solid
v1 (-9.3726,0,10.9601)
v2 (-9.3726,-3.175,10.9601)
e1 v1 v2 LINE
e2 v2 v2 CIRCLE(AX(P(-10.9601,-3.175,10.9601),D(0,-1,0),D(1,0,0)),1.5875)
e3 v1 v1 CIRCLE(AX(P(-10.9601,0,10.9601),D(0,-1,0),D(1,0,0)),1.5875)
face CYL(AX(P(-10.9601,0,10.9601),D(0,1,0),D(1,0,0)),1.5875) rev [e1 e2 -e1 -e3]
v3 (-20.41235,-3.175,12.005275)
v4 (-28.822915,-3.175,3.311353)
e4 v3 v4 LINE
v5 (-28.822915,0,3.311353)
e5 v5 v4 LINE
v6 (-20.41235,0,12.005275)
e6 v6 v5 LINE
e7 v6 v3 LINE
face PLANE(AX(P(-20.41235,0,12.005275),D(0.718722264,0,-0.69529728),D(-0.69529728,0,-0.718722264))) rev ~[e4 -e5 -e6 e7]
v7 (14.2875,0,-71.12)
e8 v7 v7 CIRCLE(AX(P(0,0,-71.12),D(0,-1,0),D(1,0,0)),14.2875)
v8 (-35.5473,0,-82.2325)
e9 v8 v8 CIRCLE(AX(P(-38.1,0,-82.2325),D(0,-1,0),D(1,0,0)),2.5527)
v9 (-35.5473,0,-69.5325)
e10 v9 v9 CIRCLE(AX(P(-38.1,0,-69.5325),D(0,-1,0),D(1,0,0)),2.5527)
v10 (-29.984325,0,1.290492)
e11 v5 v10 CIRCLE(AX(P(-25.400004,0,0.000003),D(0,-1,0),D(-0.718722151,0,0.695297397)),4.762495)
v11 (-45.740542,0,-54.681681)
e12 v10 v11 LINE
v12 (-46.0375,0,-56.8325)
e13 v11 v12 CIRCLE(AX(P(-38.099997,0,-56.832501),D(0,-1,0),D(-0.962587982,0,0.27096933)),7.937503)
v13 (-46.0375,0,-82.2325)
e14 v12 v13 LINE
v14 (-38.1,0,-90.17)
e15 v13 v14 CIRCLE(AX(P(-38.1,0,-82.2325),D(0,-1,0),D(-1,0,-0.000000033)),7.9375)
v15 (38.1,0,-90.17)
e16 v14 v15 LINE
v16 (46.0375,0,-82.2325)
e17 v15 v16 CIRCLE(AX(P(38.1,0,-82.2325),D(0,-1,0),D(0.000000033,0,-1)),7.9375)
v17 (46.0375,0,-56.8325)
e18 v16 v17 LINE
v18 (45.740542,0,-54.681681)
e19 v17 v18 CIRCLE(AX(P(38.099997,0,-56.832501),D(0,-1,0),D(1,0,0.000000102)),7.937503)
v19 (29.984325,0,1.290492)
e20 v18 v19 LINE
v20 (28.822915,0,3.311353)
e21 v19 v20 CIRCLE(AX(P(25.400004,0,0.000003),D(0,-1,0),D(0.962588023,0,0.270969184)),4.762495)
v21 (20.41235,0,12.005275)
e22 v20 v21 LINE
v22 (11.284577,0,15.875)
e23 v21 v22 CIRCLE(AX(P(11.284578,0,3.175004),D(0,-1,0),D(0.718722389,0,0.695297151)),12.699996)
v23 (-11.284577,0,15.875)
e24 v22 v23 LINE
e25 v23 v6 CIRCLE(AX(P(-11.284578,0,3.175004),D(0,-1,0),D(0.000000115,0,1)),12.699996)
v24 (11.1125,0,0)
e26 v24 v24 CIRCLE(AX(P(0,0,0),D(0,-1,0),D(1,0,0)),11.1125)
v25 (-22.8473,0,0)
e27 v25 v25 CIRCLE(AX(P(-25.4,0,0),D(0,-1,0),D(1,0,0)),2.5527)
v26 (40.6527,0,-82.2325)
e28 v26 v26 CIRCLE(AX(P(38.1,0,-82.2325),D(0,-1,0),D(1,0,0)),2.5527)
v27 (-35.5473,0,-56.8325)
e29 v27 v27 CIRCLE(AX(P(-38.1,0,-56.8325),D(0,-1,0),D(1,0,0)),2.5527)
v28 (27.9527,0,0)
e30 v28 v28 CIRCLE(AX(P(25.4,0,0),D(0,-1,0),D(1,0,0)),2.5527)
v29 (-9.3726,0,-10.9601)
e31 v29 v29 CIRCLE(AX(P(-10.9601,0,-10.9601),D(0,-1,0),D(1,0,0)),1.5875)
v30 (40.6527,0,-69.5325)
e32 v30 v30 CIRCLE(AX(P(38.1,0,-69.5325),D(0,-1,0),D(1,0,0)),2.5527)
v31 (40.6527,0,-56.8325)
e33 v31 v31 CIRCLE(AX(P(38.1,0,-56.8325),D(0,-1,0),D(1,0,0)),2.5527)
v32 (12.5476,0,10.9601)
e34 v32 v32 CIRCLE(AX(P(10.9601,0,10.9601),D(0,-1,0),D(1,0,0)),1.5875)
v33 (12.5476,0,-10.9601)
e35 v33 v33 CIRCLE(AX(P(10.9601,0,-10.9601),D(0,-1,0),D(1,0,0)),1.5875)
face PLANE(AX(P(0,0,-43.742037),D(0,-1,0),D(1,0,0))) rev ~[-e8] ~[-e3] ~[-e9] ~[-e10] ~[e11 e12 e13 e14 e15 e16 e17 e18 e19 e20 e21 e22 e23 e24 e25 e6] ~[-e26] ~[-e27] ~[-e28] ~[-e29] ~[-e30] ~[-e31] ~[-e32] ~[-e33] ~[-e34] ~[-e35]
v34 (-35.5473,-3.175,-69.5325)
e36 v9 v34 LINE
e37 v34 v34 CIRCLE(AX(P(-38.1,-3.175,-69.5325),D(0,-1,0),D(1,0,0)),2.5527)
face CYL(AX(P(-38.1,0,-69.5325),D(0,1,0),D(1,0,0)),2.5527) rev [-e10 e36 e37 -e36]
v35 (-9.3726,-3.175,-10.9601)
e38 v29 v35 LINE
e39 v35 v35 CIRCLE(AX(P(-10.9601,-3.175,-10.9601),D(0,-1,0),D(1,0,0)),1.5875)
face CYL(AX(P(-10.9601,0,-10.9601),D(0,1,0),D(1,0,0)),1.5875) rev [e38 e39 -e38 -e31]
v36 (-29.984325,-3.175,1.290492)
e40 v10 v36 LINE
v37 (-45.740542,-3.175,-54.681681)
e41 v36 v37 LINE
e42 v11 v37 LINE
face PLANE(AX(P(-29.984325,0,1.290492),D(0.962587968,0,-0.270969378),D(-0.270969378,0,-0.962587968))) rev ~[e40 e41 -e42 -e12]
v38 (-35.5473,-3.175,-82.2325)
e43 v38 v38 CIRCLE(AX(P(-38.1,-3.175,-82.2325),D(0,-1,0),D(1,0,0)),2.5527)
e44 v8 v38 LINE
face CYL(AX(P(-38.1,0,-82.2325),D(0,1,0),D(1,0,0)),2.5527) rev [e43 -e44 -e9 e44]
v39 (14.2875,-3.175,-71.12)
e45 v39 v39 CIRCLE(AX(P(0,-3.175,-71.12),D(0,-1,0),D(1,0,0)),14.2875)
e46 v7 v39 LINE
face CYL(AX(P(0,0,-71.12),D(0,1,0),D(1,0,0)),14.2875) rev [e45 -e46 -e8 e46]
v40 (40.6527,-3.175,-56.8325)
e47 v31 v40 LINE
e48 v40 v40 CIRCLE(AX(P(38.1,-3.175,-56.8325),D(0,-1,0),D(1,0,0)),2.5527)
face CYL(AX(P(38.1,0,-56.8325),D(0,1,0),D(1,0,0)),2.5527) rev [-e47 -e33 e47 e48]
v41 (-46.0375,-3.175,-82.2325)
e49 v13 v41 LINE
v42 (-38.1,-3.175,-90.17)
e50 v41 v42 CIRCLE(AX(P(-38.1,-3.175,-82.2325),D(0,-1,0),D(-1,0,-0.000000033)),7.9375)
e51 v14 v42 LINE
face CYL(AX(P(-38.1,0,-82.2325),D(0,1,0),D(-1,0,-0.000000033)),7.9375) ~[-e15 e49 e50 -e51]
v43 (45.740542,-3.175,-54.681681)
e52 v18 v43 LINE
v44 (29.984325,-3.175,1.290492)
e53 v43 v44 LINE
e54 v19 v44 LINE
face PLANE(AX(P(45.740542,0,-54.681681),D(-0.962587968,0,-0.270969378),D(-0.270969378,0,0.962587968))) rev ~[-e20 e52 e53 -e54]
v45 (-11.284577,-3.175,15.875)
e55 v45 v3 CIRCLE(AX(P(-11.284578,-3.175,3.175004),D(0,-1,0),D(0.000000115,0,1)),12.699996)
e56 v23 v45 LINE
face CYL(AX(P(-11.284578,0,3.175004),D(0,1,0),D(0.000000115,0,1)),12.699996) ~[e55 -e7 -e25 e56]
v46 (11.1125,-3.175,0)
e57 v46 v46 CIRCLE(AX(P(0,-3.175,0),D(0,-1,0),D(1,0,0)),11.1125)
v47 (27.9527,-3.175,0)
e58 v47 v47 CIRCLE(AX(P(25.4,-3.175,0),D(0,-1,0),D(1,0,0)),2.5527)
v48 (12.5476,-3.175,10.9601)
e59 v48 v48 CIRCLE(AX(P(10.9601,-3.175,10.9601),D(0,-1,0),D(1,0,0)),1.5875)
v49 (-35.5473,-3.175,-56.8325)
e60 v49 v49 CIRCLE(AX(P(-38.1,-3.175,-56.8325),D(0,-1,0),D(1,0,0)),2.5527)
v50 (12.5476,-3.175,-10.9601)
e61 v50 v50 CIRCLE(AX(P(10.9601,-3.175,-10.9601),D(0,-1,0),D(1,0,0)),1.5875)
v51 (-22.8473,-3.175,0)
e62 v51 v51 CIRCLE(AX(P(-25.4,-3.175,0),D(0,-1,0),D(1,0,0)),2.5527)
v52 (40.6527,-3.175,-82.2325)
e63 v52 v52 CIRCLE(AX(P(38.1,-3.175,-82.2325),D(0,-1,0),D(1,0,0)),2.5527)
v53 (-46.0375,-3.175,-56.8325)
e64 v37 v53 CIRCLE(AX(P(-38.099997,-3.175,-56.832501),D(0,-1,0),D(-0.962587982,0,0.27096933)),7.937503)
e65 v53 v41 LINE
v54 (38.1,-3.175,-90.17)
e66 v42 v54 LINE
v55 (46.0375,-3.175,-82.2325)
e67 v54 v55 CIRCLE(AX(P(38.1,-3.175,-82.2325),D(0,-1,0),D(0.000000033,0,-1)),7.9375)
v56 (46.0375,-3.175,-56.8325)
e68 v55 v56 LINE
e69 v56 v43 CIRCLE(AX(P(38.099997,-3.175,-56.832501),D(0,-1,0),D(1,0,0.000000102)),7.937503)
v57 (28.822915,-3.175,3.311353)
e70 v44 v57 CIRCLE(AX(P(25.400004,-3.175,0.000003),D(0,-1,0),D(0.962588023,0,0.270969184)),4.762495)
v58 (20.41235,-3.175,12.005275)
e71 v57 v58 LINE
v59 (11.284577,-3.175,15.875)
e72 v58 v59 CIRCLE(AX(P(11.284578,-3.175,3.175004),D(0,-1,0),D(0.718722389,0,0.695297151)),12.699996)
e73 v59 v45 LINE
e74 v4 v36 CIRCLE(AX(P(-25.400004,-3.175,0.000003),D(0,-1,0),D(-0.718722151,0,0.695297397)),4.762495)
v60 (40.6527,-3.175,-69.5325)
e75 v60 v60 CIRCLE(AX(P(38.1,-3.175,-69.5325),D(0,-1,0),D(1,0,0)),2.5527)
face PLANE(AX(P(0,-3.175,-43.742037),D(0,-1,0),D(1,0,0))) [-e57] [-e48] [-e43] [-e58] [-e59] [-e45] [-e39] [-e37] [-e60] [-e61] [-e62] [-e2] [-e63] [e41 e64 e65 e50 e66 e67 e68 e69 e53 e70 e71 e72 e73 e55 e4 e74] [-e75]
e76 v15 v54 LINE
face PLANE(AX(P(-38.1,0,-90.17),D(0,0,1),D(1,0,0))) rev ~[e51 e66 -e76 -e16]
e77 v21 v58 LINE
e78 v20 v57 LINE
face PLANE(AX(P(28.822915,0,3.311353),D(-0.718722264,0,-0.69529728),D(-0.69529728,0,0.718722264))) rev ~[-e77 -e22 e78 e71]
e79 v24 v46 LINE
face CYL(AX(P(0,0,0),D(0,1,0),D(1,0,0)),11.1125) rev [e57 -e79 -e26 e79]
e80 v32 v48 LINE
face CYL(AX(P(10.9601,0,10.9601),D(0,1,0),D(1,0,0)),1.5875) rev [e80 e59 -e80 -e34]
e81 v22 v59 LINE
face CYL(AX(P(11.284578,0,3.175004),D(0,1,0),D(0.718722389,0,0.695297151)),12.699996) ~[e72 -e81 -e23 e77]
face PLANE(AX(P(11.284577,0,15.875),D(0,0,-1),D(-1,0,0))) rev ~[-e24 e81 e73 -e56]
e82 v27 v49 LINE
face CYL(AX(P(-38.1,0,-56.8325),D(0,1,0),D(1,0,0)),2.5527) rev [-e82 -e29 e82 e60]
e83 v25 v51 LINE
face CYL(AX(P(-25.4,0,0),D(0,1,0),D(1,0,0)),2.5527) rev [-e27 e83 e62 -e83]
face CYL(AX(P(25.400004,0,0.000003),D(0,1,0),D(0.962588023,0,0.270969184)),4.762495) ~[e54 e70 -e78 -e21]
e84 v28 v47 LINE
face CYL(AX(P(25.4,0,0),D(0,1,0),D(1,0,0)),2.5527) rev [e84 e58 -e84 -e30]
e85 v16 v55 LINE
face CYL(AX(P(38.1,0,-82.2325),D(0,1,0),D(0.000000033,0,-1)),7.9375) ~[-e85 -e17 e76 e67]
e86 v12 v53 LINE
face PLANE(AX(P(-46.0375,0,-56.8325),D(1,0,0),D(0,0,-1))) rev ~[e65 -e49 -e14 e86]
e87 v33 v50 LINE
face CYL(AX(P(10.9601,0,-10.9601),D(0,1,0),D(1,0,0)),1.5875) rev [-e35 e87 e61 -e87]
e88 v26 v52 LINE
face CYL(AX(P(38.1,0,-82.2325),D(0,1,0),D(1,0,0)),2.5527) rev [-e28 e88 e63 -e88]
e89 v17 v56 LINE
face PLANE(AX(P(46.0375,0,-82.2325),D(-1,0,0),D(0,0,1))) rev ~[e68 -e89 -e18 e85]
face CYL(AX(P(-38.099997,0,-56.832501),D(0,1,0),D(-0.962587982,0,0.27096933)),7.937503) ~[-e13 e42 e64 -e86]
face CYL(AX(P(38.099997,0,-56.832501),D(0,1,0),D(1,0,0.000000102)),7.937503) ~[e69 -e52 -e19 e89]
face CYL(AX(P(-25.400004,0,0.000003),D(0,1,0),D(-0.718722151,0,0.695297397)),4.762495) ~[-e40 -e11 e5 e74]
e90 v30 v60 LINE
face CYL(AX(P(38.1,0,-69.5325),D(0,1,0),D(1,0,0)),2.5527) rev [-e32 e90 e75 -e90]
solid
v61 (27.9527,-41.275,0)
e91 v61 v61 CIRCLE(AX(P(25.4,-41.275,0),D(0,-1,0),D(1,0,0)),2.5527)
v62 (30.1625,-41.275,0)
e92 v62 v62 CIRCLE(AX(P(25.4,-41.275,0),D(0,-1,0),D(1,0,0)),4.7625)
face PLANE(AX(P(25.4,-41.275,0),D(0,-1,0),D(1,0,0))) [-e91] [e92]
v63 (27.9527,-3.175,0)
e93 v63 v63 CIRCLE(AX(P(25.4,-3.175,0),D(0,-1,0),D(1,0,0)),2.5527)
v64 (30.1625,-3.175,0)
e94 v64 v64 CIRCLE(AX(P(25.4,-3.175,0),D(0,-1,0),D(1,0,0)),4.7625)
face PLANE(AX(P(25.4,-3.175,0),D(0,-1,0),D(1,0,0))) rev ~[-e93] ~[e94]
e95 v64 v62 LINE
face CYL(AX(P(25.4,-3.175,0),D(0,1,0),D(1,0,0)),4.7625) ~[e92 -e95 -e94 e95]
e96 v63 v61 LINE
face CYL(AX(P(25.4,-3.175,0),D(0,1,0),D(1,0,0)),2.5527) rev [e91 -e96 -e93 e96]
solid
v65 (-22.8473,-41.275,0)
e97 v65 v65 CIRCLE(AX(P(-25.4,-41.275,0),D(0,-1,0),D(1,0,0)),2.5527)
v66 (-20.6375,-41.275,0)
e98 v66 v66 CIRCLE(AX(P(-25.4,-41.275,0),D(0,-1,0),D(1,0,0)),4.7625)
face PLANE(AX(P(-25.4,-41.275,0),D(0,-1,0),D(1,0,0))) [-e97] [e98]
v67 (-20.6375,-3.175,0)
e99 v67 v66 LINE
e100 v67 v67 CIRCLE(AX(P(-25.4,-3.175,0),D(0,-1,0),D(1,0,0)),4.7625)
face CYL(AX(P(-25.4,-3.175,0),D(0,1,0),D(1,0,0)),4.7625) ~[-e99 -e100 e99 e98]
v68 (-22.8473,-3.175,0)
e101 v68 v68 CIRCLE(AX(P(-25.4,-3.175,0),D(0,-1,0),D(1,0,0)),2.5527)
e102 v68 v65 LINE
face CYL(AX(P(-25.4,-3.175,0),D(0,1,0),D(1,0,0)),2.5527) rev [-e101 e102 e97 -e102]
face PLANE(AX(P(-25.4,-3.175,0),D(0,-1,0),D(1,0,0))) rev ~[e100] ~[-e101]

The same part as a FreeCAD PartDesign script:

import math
import FreeCAD as App
import Part
import Sketcher

V = App.Vector
Q = App.Units.Quantity

doc = App.newDocument("Part")
body = doc.addObject("PartDesign::Body", "Body")

sketch1 = doc.addObject("Sketcher::SketchObject", "Sketch")
body.addObject(sketch1)
sketch1.AttachmentSupport = (doc.XZ_Plane, [""])
sketch1.MapMode = "FlatFace"
sketch1.addGeometry([
    Part.LineSegment(V(-20.4, 12, 0), V(-28.8, 3.3, 0)),
    Part.ArcOfCircle(Part.Circle(V(-25.4, 0, 0), V(0, 0, 1), 4.8), math.radians(136), math.radians(164)),
    Part.LineSegment(V(-30, 1.3, 0), V(-45.7, -54.7, 0)),
    Part.ArcOfCircle(Part.Circle(V(-38.1, -56.8, 0), V(0, 0, 1), 7.9), math.radians(164.28), math.radians(180)),
    Part.LineSegment(V(-46, -56.8, 0), V(-46, -82.2, 0)),
    Part.ArcOfCircle(Part.Circle(V(-38.1, -82.2, 0), V(0, 0, 1), 7.9), math.radians(-180), math.radians(-90)),
    Part.LineSegment(V(-38.1, -90.2, 0), V(38.1, -90.2, 0)),
    Part.ArcOfCircle(Part.Circle(V(38.1, -82.2, 0), V(0, 0, 1), 7.9), math.radians(-90), math.radians(0)),
    Part.LineSegment(V(46, -82.2, 0), V(46, -56.8, 0)),
    Part.ArcOfCircle(Part.Circle(V(38.1, -56.8, 0), V(0, 0, 1), 7.9), math.radians(0), math.radians(15.72)),
    Part.LineSegment(V(45.7, -54.7, 0), V(30, 1.3, 0)),
    Part.ArcOfCircle(Part.Circle(V(25.4, 0, 0), V(0, 0, 1), 4.8), math.radians(16), math.radians(44)),
    Part.LineSegment(V(28.8, 3.3, 0), V(20.4, 12, 0)),
    Part.ArcOfCircle(Part.Circle(V(11.3, 3.2, 0), V(0, 0, 1), 12.7), math.radians(44), math.radians(90)),
    Part.LineSegment(V(11.3, 15.9, 0), V(-11.3, 15.9, 0)),
    Part.ArcOfCircle(Part.Circle(V(-11.3, 3.2, 0), V(0, 0, 1), 12.7), math.radians(90), math.radians(136)),
    Part.Circle(V(-38.1, -82.2, 0), V(0, 0, 1), 2.6),
    Part.Circle(V(-38.1, -69.5, 0), V(0, 0, 1), 2.6),
    Part.Circle(V(-38.1, -56.8, 0), V(0, 0, 1), 2.6),
    Part.Circle(V(0, -71.1, 0), V(0, 0, 1), 14.3),
    Part.Circle(V(38.1, -82.2, 0), V(0, 0, 1), 2.6),
    Part.Circle(V(38.1, -69.5, 0), V(0, 0, 1), 2.6),
    Part.Circle(V(38.1, -56.8, 0), V(0, 0, 1), 2.6),
    Part.Circle(V(-25.4, 0, 0), V(0, 0, 1), 2.6),
    Part.Circle(V(-11, -11, 0), V(0, 0, 1), 1.6),
    Part.Circle(V(-11, 11, 0), V(0, 0, 1), 1.6),
    Part.Circle(V(0, 0, 0), V(0, 0, 1), 11.1),
    Part.Circle(V(11, -11, 0), V(0, 0, 1), 1.6),
    Part.Circle(V(11, 11, 0), V(0, 0, 1), 1.6),
    Part.Circle(V(25.4, 0, 0), V(0, 0, 1), 2.6),
], False)
sketch1.addConstraint([
    Sketcher.Constraint("Tangent", 0, 2, 1, 1),
    Sketcher.Constraint("Tangent", 1, 2, 2, 1),
    Sketcher.Constraint("Tangent", 2, 2, 3, 1),
    Sketcher.Constraint("Tangent", 3, 2, 4, 1),
    Sketcher.Constraint("Tangent", 4, 2, 5, 1),
    Sketcher.Constraint("Tangent", 5, 2, 6, 1),
    Sketcher.Constraint("Tangent", 6, 2, 7, 1),
    Sketcher.Constraint("Tangent", 7, 2, 8, 1),
    Sketcher.Constraint("Tangent", 8, 2, 9, 1),
    Sketcher.Constraint("Tangent", 9, 2, 10, 1),
    Sketcher.Constraint("Tangent", 10, 2, 11, 1),
    Sketcher.Constraint("Tangent", 11, 2, 12, 1),
    Sketcher.Constraint("Tangent", 12, 2, 13, 1),
    Sketcher.Constraint("Tangent", 13, 2, 14, 1),
    Sketcher.Constraint("Tangent", 14, 2, 15, 1),
    Sketcher.Constraint("Tangent", 15, 2, 0, 1),
    Sketcher.Constraint("Vertical", 4),
    Sketcher.Constraint("Horizontal", 6),
    Sketcher.Constraint("Vertical", 8),
    Sketcher.Constraint("Horizontal", 14),
    Sketcher.Constraint("Coincident", 26, 3, -1, 1),
    Sketcher.Constraint("Coincident", 16, 3, 5, 3),
    Sketcher.Constraint("Coincident", 18, 3, 3, 3),
    Sketcher.Constraint("Coincident", 20, 3, 7, 3),
    Sketcher.Constraint("Coincident", 22, 3, 9, 3),
    Sketcher.Constraint("Coincident", 23, 3, 1, 3),
    Sketcher.Constraint("Coincident", 29, 3, 11, 3),
    Sketcher.Constraint("Equal", 5, 7),
    Sketcher.Constraint("Equal", 3, 9),
    Sketcher.Constraint("Equal", 1, 11),
    Sketcher.Constraint("Equal", 13, 15),
    Sketcher.Constraint("Equal", 16, 17),
    Sketcher.Constraint("Equal", 17, 18),
    Sketcher.Constraint("Equal", 18, 20),
    Sketcher.Constraint("Equal", 20, 21),
    Sketcher.Constraint("Equal", 21, 22),
    Sketcher.Constraint("Equal", 22, 23),
    Sketcher.Constraint("Equal", 24, 25),
    Sketcher.Constraint("Equal", 25, 27),
    Sketcher.Constraint("Equal", 27, 28),
    Sketcher.Constraint("Equal", 23, 29),
    Sketcher.Constraint("Symmetric", 1, 3, 11, 3, -1, 1),
    Sketcher.Constraint("Symmetric", 25, 3, 27, 3, -1, 1),
    Sketcher.Constraint("Symmetric", 24, 3, 28, 3, -1, 1),
    Sketcher.Constraint("Symmetric", 3, 3, 9, 3, -2),
    Sketcher.Constraint("Symmetric", 17, 3, 21, 3, -2),
    Sketcher.Constraint("Symmetric", 24, 3, 27, 3, -2),
    Sketcher.Constraint("Symmetric", 0, 2, 11, 2, -2),
    Sketcher.Constraint("PointOnObject", 19, 3, -2),
    Sketcher.Constraint("Vertical", 16, 3, 17, 3),
    Sketcher.Constraint("Vertical", 17, 3, 18, 3),
    Sketcher.Constraint("Radius", 13, Q("0.4999998 in")),
    Sketcher.Constraint("DistanceX", 6, 1, 6, 2, Q("3 in")),
    Sketcher.Constraint("DistanceY", 4, 2, 4, 1, Q("1 in")),
    Sketcher.Constraint("Diameter", 16, Q("0.201 in")),
    Sketcher.Constraint("Diameter", 19, Q("1.125 in")),
    Sketcher.Constraint("Diameter", 24, Q("0.125 in")),
    Sketcher.Constraint("Diameter", 26, Q("0.875 in")),
    Sketcher.Constraint("DistanceX", 1, 3, -1, 1, Q("1.0000002 in")),
    Sketcher.Constraint("Radius", 3, Q("0.3125001 in")),
    Sketcher.Constraint("DistanceY", 19, 3, -1, 1, Q("2.8 in")),
    Sketcher.Constraint("Radius", 1, Q("0.1874998 in")),
    Sketcher.Constraint("DistanceY", 17, 3, 3, 3, Q("0.5 in")),
    Sketcher.Constraint("DistanceY", 5, 2, -1, 1, Q("3.55 in")),
    Sketcher.Constraint("DistanceY", -1, 1, 13, 3, Q("0.1250002 in")),
    Sketcher.Constraint("DistanceY", 24, 3, 25, 3, Q("0.863 in")),
    Sketcher.Constraint("DistanceX", 24, 3, 27, 3, Q("0.863 in")),
    Sketcher.Constraint("Distance", 0, Q("12.096358 mm")),
])
pad1 = doc.addObject("PartDesign::Pad", "Pad")
body.addObject(pad1)
pad1.Profile = sketch1
pad1.Length = Q("0.125 in")
body2 = doc.addObject("PartDesign::Body", "Body001")
body2.AllowCompound = True

sketch2 = doc.addObject("Sketcher::SketchObject", "Sketch001")
body2.addObject(sketch2)
sketch2.AttachmentSupport = (doc.getObject("XZ_Plane001"), [""])
sketch2.MapMode = "FlatFace"
sketch2.AttachmentOffset = App.Placement(V(0, 0, 0.125 * 25.4), App.Rotation())
sketch2.addGeometry([
    Part.Circle(V(-25.4, 0, 0), V(0, 0, 1), 4.8),
    Part.Circle(V(-25.4, 0, 0), V(0, 0, 1), 2.6),
    Part.Circle(V(25.4, 0, 0), V(0, 0, 1), 4.8),
    Part.Circle(V(25.4, 0, 0), V(0, 0, 1), 2.6),
], False)
sketch2.addConstraint([
    Sketcher.Constraint("Coincident", 1, 3, 0, 3),
    Sketcher.Constraint("Coincident", 3, 3, 2, 3),
    Sketcher.Constraint("Equal", 0, 2),
    Sketcher.Constraint("Equal", 1, 3),
    Sketcher.Constraint("Symmetric", 0, 3, 2, 3, -1, 1),
    Sketcher.Constraint("PointOnObject", 0, 3, -1),
    Sketcher.Constraint("Diameter", 0, Q("0.375 in")),
    Sketcher.Constraint("Diameter", 1, Q("0.201 in")),
    Sketcher.Constraint("DistanceX", 0, 3, -1, 1, Q("1 in")),
])
pad2 = doc.addObject("PartDesign::Pad", "Pad001")
body2.addObject(pad2)
pad2.Profile = sketch2
pad2.Length = Q("1.5 in")

doc.recompute()
